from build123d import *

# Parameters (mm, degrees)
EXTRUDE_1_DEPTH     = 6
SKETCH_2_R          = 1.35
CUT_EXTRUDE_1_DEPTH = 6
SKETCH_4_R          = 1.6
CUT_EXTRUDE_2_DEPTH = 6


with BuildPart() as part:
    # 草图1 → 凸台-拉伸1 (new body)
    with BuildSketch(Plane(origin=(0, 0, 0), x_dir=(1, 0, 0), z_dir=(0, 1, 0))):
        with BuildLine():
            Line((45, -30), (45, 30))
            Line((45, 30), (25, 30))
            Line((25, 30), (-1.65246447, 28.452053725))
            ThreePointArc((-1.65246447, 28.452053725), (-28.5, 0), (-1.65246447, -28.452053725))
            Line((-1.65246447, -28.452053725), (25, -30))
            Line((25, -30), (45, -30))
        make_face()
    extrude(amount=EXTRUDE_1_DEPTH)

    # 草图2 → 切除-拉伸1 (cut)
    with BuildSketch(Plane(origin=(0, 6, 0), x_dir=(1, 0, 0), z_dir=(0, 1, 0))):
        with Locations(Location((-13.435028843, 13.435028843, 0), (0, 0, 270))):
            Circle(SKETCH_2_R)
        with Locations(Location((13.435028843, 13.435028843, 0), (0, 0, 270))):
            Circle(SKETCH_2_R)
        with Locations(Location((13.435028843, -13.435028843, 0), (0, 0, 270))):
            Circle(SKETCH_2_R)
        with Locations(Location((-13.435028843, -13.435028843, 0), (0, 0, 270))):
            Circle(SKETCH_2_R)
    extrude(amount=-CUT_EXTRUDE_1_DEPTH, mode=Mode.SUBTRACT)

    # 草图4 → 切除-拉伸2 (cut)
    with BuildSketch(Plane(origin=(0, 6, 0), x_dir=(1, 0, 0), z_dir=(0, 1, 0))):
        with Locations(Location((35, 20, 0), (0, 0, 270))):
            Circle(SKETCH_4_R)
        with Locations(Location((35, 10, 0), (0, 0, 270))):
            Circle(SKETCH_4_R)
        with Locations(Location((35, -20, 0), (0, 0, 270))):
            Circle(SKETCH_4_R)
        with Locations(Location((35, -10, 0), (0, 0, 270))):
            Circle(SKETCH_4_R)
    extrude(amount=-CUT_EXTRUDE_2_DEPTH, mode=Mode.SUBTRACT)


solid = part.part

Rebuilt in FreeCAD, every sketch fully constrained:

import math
import FreeCAD as App
import Part
import Sketcher
Q = App.Units.Quantity

doc = App.newDocument("Part")
body = doc.addObject("PartDesign::Body", "Body")

sketch1 = body.newObject("Sketcher::SketchObject", "Sketch")
sketch1.AttachmentSupport = (doc.getObject("XZ_Plane"), [""])
sketch1.MapMode = "FlatFace"
sketch1.addGeometry([
    Part.LineSegment(App.Vector(45, 30, 0), App.Vector(45, -30, 0)),
    Part.LineSegment(App.Vector(45, -30, 0), App.Vector(25, -30, 0)),
    Part.LineSegment(App.Vector(25, -30, 0), App.Vector(-2, -28, 0)),
    Part.ArcOfCircle(Part.Circle(App.Vector(0, 0, 0), App.Vector(0, 0, 1), 28), math.radians(93), math.radians(267)),
    Part.LineSegment(App.Vector(-2, 28, 0), App.Vector(25, 30, 0)),
    Part.LineSegment(App.Vector(25, 30, 0), App.Vector(45, 30, 0)),
], False)
sketch1.addConstraint([
    Sketcher.Constraint("Coincident", 0, 2, 1, 1),
    Sketcher.Constraint("Coincident", 1, 2, 2, 1),
    Sketcher.Constraint("Tangent", 2, 2, 3, 2),
    Sketcher.Constraint("Tangent", 3, 1, 4, 1),
    Sketcher.Constraint("Coincident", 4, 2, 5, 1),
    Sketcher.Constraint("Coincident", 5, 2, 0, 1),
    Sketcher.Constraint("Vertical", 0),
    Sketcher.Constraint("Horizontal", 1),
    Sketcher.Constraint("Horizontal", 5),
    Sketcher.Constraint("Coincident", 3, 3, -1, 1),
    Sketcher.Constraint("Symmetric", 1, 2, 4, 2, -1),
    Sketcher.Constraint("Radius", 3, Q("28.5 mm")),
    Sketcher.Constraint("DistanceX", 1, 2, 1, 1, Q("20 mm")),
    Sketcher.Constraint("DistanceY", 0, 2, 0, 1, Q("60 mm")),
    Sketcher.Constraint("DistanceX", -1, 1, 0, 2, Q("45 mm")),
])
pad1 = body.newObject("PartDesign::Pad", "Pad")
pad1.Profile = sketch1
pad1.Length = 6
pad1.Reversed = True

sketch2 = body.newObject("Sketcher::SketchObject", "Sketch001")
sketch2.AttachmentSupport = (doc.getObject("XZ_Plane"), [""])
sketch2.MapMode = "FlatFace"
sketch2.AttachmentOffset = App.Placement(App.Vector(0, 0, -6), App.Rotation())
sketch2.addGeometry([
    Part.Circle(App.Vector(-13.4, -13.4, 0), App.Vector(0, 0, 1), 1.4),
    Part.Circle(App.Vector(13.4, -13.4, 0), App.Vector(0, 0, 1), 1.4),
    Part.Circle(App.Vector(13.4, 13.4, 0), App.Vector(0, 0, 1), 1.4),
    Part.Circle(App.Vector(-13.4, 13.4, 0), App.Vector(0, 0, 1), 1.4),
], False)
sketch2.addConstraint([
    Sketcher.Constraint("Equal", 0, 1),
    Sketcher.Constraint("Equal", 1, 2),
    Sketcher.Constraint("Equal", 2, 3),
    Sketcher.Constraint("Symmetric", 0, 3, 2, 3, -1, 1),
    Sketcher.Constraint("Symmetric", 1, 3, 3, 3, -1, 1),
    Sketcher.Constraint("Symmetric", 0, 3, 1, 3, -2),
    Sketcher.Constraint("Diameter", 0, Q("2.7 mm")),
    Sketcher.Constraint("DistanceX", 0, 3, -1, 1, Q("13.435029 mm")),
    Sketcher.Constraint("DistanceY", 0, 3, -1, 1, Q("13.435029 mm")),
])
pocket1 = body.newObject("PartDesign::Pocket", "Pocket")
pocket1.Profile = sketch2
pocket1.Length = 6
pocket1.Reversed = True

sketch3 = body.newObject("Sketcher::SketchObject", "Sketch002")
sketch3.AttachmentSupport = (doc.getObject("XZ_Plane"), [""])
sketch3.MapMode = "FlatFace"
sketch3.AttachmentOffset = App.Placement(App.Vector(0, 0, -6), App.Rotation())
sketch3.addGeometry([
    Part.Circle(App.Vector(35, -20, 0), App.Vector(0, 0, 1), 1.6),
    Part.Circle(App.Vector(35, -10, 0), App.Vector(0, 0, 1), 1.6),
    Part.Circle(App.Vector(35, 20, 0), App.Vector(0, 0, 1), 1.6),
    Part.Circle(App.Vector(35, 10, 0), App.Vector(0, 0, 1), 1.6),
], False)
sketch3.addConstraint([
    Sketcher.Constraint("Equal", 0, 1),
    Sketcher.Constraint("Equal", 1, 2),
    Sketcher.Constraint("Equal", 2, 3),
    Sketcher.Constraint("Symmetric", 0, 3, 2, 3, -1),
    Sketcher.Constraint("Symmetric", 1, 3, 3, 3, -1),
    Sketcher.Constraint("Vertical", 0, 3, 1, 3),
    Sketcher.Constraint("Diameter", 0, Q("3.2 mm")),
    Sketcher.Constraint("DistanceX", -1, 1, 0, 3, Q("35 mm")),
    Sketcher.Constraint("DistanceY", 0, 3, -1, 1, Q("20 mm")),
    Sketcher.Constraint("DistanceY", 1, 3, -1, 1, Q("10 mm")),
])
pocket2 = body.newObject("PartDesign::Pocket", "Pocket001")
pocket2.Profile = sketch3
pocket2.Length = 6
pocket2.Reversed = True

doc.recompute()
